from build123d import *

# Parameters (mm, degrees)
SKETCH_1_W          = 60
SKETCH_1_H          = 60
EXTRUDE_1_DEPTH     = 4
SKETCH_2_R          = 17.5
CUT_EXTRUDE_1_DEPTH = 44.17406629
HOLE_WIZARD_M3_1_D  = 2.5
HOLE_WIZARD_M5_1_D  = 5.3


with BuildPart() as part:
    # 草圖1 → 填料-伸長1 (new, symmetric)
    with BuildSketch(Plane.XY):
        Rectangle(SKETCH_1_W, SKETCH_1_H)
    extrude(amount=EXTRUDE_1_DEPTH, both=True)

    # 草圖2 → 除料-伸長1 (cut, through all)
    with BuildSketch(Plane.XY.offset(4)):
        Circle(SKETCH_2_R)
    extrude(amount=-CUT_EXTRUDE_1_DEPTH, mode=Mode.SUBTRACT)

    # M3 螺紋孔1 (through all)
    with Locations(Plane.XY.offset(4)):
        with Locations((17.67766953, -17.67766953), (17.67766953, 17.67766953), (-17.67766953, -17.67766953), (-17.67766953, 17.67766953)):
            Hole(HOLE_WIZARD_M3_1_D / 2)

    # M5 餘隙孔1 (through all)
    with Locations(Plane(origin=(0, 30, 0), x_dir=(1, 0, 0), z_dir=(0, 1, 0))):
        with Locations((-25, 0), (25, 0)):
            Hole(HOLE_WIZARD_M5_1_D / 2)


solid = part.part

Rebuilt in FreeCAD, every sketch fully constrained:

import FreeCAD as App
import Part
import Sketcher
Q = App.Units.Quantity


def add_polygon(sketch, points):
    """Adds a closed chain of lines whose ends are joined by coincident constraints."""
    first, n = sketch.GeometryCount, len(points)
    for a, b in zip(points, points[1:] + points[:1]):
        sketch.addGeometry(Part.LineSegment(App.Vector(*a, 0), App.Vector(*b, 0)), False)
    for i in range(n):
        sketch.addConstraint(Sketcher.Constraint("Coincident", first + i, 2, first + (i + 1) % n, 1))

doc = App.newDocument("Part")
params = doc.addObject("Spreadsheet::Sheet", "Params")
for row, (alias, value) in enumerate([
    ("sketch1_width", "60 mm"),
    ("pad1_length", "8 mm"),
    ("sketch2_diameter", "35 mm"),
    ("sketch3_diameter", "2.5 mm"),
    ("hole_diameter", "2.5 mm"),
    ("sketch4_diameter", "5.3 mm"),
    ("hole2_diameter", "5.3 mm"),
], start=1):
    params.set(f"A{row}", alias)
    params.set(f"B{row}", "=" + value)
    params.setAlias(f"B{row}", alias)

body = doc.addObject("PartDesign::Body", "Body")

# Sketch on XY plane
sketch1 = body.newObject("Sketcher::SketchObject", "Sketch")
sketch1.AttachmentSupport = (doc.getObject("XY_Plane"), [""])
sketch1.MapMode = "FlatFace"
add_polygon(sketch1, [(-30, 30), (-30, -30), (30, -30), (30, 30)])  # lines 0-3
sketch1.addConstraint([
    Sketcher.Constraint("Vertical", 0),
    Sketcher.Constraint("Horizontal", 1),
    Sketcher.Constraint("Vertical", 2),
    Sketcher.Constraint("Horizontal", 3),
    Sketcher.Constraint("Symmetric", 0, 2, 2, 2, -1, 1),
    Sketcher.Constraint("Equal", 3, 0),
    Sketcher.Constraint("DistanceX", 1, 1, 1, 2, Q("60 mm")),
])
sketch1.setExpression("Constraints[10]", "Params.sketch1_width")
pad1 = body.newObject("PartDesign::Pad", "Pad")
pad1.Profile = sketch1
pad1.setExpression("Length", "Params.pad1_length")
pad1.Midplane = True

# Sketch on XY plane
sketch2 = body.newObject("Sketcher::SketchObject", "Sketch001")
sketch2.AttachmentSupport = (doc.getObject("XY_Plane"), [""])
sketch2.MapMode = "FlatFace"
sketch2.AttachmentOffset = App.Placement(App.Vector(0, 0, 4), App.Rotation())
sketch2.addGeometry(Part.Circle(App.Vector(0, 0, 0), App.Vector(0, 0, 1), 17.5), False)
sketch2.addConstraint([
    Sketcher.Constraint("Coincident", 0, 3, -1, 1),
    Sketcher.Constraint("Diameter", 0, Q("35 mm")),
])
sketch2.setExpression("Constraints[1]", "Params.sketch2_diameter")
pocket1 = body.newObject("PartDesign::Pocket", "Pocket")
pocket1.Profile = sketch2
pocket1.Type = "ThroughAll"

# Sketch on XY plane
sketch3 = body.newObject("Sketcher::SketchObject", "Sketch002")
sketch3.AttachmentSupport = (doc.getObject("XY_Plane"), [""])
sketch3.MapMode = "FlatFace"
sketch3.AttachmentOffset = App.Placement(App.Vector(0, 0, 4), App.Rotation())
sketch3.addGeometry([
    Part.Circle(App.Vector(17.67767, -17.67767, 0), App.Vector(0, 0, 1), 1.25),
    Part.Circle(App.Vector(17.67767, 17.67767, 0), App.Vector(0, 0, 1), 1.25),
    Part.Circle(App.Vector(-17.67767, -17.67767, 0), App.Vector(0, 0, 1), 1.25),
    Part.Circle(App.Vector(-17.67767, 17.67767, 0), App.Vector(0, 0, 1), 1.25),
], False)
sketch3.addConstraint([
    Sketcher.Constraint("Equal", 0, 1),
    Sketcher.Constraint("Equal", 1, 2),
    Sketcher.Constraint("Equal", 2, 3),
    Sketcher.Constraint("Symmetric", 1, 3, 2, 3, -1, 1),
    Sketcher.Constraint("Symmetric", 0, 3, 3, 3, -1, 1),
    Sketcher.Constraint("Symmetric", 0, 3, 2, 3, -2),
    Sketcher.Constraint("Diameter", 0, Q("2.5 mm")),
    Sketcher.Constraint("DistanceX", -1, 1, 0, 3, Q("17.67767 mm")),
    Sketcher.Constraint("DistanceY", 0, 3, -1, 1, Q("17.67767 mm")),
])
sketch3.setExpression("Constraints[6]", "Params.sketch3_diameter")
doc.recompute()
hole = body.newObject("PartDesign::Hole", "Hole")
hole.Profile = sketch3
hole.ThreadType = "None"
hole.setExpression("Diameter", "Params.hole_diameter")
hole.DepthType = "ThroughAll"

# Sketch on XZ plane
sketch4 = body.newObject("Sketcher::SketchObject", "Sketch003")
sketch4.AttachmentSupport = (doc.getObject("XZ_Plane"), [""])
sketch4.MapMode = "FlatFace"
sketch4.AttachmentOffset = App.Placement(App.Vector(0, 0, -30), App.Rotation())
sketch4.addGeometry([
    Part.Circle(App.Vector(-25, 0, 0), App.Vector(0, 0, 1), 2.65),
    Part.Circle(App.Vector(25, 0, 0), App.Vector(0, 0, 1), 2.65),
], False)
sketch4.addConstraint([
    Sketcher.Constraint("Equal", 0, 1),
    Sketcher.Constraint("Symmetric", 0, 3, 1, 3, -1, 1),
    Sketcher.Constraint("PointOnObject", 0, 3, -1),
    Sketcher.Constraint("Diameter", 0, Q("5.3 mm")),
    Sketcher.Constraint("DistanceX", 0, 3, -1, 1, Q("25 mm")),
])
sketch4.setExpression("Constraints[3]", "Params.sketch4_diameter")
doc.recompute()
hole2 = body.newObject("PartDesign::Hole", "Hole001")
hole2.Profile = sketch4
hole2.ThreadType = "None"
hole2.setExpression("Diameter", "Params.hole2_diameter")
hole2.DepthType = "ThroughAll"
hole2.Reversed = True

doc.recompute()
